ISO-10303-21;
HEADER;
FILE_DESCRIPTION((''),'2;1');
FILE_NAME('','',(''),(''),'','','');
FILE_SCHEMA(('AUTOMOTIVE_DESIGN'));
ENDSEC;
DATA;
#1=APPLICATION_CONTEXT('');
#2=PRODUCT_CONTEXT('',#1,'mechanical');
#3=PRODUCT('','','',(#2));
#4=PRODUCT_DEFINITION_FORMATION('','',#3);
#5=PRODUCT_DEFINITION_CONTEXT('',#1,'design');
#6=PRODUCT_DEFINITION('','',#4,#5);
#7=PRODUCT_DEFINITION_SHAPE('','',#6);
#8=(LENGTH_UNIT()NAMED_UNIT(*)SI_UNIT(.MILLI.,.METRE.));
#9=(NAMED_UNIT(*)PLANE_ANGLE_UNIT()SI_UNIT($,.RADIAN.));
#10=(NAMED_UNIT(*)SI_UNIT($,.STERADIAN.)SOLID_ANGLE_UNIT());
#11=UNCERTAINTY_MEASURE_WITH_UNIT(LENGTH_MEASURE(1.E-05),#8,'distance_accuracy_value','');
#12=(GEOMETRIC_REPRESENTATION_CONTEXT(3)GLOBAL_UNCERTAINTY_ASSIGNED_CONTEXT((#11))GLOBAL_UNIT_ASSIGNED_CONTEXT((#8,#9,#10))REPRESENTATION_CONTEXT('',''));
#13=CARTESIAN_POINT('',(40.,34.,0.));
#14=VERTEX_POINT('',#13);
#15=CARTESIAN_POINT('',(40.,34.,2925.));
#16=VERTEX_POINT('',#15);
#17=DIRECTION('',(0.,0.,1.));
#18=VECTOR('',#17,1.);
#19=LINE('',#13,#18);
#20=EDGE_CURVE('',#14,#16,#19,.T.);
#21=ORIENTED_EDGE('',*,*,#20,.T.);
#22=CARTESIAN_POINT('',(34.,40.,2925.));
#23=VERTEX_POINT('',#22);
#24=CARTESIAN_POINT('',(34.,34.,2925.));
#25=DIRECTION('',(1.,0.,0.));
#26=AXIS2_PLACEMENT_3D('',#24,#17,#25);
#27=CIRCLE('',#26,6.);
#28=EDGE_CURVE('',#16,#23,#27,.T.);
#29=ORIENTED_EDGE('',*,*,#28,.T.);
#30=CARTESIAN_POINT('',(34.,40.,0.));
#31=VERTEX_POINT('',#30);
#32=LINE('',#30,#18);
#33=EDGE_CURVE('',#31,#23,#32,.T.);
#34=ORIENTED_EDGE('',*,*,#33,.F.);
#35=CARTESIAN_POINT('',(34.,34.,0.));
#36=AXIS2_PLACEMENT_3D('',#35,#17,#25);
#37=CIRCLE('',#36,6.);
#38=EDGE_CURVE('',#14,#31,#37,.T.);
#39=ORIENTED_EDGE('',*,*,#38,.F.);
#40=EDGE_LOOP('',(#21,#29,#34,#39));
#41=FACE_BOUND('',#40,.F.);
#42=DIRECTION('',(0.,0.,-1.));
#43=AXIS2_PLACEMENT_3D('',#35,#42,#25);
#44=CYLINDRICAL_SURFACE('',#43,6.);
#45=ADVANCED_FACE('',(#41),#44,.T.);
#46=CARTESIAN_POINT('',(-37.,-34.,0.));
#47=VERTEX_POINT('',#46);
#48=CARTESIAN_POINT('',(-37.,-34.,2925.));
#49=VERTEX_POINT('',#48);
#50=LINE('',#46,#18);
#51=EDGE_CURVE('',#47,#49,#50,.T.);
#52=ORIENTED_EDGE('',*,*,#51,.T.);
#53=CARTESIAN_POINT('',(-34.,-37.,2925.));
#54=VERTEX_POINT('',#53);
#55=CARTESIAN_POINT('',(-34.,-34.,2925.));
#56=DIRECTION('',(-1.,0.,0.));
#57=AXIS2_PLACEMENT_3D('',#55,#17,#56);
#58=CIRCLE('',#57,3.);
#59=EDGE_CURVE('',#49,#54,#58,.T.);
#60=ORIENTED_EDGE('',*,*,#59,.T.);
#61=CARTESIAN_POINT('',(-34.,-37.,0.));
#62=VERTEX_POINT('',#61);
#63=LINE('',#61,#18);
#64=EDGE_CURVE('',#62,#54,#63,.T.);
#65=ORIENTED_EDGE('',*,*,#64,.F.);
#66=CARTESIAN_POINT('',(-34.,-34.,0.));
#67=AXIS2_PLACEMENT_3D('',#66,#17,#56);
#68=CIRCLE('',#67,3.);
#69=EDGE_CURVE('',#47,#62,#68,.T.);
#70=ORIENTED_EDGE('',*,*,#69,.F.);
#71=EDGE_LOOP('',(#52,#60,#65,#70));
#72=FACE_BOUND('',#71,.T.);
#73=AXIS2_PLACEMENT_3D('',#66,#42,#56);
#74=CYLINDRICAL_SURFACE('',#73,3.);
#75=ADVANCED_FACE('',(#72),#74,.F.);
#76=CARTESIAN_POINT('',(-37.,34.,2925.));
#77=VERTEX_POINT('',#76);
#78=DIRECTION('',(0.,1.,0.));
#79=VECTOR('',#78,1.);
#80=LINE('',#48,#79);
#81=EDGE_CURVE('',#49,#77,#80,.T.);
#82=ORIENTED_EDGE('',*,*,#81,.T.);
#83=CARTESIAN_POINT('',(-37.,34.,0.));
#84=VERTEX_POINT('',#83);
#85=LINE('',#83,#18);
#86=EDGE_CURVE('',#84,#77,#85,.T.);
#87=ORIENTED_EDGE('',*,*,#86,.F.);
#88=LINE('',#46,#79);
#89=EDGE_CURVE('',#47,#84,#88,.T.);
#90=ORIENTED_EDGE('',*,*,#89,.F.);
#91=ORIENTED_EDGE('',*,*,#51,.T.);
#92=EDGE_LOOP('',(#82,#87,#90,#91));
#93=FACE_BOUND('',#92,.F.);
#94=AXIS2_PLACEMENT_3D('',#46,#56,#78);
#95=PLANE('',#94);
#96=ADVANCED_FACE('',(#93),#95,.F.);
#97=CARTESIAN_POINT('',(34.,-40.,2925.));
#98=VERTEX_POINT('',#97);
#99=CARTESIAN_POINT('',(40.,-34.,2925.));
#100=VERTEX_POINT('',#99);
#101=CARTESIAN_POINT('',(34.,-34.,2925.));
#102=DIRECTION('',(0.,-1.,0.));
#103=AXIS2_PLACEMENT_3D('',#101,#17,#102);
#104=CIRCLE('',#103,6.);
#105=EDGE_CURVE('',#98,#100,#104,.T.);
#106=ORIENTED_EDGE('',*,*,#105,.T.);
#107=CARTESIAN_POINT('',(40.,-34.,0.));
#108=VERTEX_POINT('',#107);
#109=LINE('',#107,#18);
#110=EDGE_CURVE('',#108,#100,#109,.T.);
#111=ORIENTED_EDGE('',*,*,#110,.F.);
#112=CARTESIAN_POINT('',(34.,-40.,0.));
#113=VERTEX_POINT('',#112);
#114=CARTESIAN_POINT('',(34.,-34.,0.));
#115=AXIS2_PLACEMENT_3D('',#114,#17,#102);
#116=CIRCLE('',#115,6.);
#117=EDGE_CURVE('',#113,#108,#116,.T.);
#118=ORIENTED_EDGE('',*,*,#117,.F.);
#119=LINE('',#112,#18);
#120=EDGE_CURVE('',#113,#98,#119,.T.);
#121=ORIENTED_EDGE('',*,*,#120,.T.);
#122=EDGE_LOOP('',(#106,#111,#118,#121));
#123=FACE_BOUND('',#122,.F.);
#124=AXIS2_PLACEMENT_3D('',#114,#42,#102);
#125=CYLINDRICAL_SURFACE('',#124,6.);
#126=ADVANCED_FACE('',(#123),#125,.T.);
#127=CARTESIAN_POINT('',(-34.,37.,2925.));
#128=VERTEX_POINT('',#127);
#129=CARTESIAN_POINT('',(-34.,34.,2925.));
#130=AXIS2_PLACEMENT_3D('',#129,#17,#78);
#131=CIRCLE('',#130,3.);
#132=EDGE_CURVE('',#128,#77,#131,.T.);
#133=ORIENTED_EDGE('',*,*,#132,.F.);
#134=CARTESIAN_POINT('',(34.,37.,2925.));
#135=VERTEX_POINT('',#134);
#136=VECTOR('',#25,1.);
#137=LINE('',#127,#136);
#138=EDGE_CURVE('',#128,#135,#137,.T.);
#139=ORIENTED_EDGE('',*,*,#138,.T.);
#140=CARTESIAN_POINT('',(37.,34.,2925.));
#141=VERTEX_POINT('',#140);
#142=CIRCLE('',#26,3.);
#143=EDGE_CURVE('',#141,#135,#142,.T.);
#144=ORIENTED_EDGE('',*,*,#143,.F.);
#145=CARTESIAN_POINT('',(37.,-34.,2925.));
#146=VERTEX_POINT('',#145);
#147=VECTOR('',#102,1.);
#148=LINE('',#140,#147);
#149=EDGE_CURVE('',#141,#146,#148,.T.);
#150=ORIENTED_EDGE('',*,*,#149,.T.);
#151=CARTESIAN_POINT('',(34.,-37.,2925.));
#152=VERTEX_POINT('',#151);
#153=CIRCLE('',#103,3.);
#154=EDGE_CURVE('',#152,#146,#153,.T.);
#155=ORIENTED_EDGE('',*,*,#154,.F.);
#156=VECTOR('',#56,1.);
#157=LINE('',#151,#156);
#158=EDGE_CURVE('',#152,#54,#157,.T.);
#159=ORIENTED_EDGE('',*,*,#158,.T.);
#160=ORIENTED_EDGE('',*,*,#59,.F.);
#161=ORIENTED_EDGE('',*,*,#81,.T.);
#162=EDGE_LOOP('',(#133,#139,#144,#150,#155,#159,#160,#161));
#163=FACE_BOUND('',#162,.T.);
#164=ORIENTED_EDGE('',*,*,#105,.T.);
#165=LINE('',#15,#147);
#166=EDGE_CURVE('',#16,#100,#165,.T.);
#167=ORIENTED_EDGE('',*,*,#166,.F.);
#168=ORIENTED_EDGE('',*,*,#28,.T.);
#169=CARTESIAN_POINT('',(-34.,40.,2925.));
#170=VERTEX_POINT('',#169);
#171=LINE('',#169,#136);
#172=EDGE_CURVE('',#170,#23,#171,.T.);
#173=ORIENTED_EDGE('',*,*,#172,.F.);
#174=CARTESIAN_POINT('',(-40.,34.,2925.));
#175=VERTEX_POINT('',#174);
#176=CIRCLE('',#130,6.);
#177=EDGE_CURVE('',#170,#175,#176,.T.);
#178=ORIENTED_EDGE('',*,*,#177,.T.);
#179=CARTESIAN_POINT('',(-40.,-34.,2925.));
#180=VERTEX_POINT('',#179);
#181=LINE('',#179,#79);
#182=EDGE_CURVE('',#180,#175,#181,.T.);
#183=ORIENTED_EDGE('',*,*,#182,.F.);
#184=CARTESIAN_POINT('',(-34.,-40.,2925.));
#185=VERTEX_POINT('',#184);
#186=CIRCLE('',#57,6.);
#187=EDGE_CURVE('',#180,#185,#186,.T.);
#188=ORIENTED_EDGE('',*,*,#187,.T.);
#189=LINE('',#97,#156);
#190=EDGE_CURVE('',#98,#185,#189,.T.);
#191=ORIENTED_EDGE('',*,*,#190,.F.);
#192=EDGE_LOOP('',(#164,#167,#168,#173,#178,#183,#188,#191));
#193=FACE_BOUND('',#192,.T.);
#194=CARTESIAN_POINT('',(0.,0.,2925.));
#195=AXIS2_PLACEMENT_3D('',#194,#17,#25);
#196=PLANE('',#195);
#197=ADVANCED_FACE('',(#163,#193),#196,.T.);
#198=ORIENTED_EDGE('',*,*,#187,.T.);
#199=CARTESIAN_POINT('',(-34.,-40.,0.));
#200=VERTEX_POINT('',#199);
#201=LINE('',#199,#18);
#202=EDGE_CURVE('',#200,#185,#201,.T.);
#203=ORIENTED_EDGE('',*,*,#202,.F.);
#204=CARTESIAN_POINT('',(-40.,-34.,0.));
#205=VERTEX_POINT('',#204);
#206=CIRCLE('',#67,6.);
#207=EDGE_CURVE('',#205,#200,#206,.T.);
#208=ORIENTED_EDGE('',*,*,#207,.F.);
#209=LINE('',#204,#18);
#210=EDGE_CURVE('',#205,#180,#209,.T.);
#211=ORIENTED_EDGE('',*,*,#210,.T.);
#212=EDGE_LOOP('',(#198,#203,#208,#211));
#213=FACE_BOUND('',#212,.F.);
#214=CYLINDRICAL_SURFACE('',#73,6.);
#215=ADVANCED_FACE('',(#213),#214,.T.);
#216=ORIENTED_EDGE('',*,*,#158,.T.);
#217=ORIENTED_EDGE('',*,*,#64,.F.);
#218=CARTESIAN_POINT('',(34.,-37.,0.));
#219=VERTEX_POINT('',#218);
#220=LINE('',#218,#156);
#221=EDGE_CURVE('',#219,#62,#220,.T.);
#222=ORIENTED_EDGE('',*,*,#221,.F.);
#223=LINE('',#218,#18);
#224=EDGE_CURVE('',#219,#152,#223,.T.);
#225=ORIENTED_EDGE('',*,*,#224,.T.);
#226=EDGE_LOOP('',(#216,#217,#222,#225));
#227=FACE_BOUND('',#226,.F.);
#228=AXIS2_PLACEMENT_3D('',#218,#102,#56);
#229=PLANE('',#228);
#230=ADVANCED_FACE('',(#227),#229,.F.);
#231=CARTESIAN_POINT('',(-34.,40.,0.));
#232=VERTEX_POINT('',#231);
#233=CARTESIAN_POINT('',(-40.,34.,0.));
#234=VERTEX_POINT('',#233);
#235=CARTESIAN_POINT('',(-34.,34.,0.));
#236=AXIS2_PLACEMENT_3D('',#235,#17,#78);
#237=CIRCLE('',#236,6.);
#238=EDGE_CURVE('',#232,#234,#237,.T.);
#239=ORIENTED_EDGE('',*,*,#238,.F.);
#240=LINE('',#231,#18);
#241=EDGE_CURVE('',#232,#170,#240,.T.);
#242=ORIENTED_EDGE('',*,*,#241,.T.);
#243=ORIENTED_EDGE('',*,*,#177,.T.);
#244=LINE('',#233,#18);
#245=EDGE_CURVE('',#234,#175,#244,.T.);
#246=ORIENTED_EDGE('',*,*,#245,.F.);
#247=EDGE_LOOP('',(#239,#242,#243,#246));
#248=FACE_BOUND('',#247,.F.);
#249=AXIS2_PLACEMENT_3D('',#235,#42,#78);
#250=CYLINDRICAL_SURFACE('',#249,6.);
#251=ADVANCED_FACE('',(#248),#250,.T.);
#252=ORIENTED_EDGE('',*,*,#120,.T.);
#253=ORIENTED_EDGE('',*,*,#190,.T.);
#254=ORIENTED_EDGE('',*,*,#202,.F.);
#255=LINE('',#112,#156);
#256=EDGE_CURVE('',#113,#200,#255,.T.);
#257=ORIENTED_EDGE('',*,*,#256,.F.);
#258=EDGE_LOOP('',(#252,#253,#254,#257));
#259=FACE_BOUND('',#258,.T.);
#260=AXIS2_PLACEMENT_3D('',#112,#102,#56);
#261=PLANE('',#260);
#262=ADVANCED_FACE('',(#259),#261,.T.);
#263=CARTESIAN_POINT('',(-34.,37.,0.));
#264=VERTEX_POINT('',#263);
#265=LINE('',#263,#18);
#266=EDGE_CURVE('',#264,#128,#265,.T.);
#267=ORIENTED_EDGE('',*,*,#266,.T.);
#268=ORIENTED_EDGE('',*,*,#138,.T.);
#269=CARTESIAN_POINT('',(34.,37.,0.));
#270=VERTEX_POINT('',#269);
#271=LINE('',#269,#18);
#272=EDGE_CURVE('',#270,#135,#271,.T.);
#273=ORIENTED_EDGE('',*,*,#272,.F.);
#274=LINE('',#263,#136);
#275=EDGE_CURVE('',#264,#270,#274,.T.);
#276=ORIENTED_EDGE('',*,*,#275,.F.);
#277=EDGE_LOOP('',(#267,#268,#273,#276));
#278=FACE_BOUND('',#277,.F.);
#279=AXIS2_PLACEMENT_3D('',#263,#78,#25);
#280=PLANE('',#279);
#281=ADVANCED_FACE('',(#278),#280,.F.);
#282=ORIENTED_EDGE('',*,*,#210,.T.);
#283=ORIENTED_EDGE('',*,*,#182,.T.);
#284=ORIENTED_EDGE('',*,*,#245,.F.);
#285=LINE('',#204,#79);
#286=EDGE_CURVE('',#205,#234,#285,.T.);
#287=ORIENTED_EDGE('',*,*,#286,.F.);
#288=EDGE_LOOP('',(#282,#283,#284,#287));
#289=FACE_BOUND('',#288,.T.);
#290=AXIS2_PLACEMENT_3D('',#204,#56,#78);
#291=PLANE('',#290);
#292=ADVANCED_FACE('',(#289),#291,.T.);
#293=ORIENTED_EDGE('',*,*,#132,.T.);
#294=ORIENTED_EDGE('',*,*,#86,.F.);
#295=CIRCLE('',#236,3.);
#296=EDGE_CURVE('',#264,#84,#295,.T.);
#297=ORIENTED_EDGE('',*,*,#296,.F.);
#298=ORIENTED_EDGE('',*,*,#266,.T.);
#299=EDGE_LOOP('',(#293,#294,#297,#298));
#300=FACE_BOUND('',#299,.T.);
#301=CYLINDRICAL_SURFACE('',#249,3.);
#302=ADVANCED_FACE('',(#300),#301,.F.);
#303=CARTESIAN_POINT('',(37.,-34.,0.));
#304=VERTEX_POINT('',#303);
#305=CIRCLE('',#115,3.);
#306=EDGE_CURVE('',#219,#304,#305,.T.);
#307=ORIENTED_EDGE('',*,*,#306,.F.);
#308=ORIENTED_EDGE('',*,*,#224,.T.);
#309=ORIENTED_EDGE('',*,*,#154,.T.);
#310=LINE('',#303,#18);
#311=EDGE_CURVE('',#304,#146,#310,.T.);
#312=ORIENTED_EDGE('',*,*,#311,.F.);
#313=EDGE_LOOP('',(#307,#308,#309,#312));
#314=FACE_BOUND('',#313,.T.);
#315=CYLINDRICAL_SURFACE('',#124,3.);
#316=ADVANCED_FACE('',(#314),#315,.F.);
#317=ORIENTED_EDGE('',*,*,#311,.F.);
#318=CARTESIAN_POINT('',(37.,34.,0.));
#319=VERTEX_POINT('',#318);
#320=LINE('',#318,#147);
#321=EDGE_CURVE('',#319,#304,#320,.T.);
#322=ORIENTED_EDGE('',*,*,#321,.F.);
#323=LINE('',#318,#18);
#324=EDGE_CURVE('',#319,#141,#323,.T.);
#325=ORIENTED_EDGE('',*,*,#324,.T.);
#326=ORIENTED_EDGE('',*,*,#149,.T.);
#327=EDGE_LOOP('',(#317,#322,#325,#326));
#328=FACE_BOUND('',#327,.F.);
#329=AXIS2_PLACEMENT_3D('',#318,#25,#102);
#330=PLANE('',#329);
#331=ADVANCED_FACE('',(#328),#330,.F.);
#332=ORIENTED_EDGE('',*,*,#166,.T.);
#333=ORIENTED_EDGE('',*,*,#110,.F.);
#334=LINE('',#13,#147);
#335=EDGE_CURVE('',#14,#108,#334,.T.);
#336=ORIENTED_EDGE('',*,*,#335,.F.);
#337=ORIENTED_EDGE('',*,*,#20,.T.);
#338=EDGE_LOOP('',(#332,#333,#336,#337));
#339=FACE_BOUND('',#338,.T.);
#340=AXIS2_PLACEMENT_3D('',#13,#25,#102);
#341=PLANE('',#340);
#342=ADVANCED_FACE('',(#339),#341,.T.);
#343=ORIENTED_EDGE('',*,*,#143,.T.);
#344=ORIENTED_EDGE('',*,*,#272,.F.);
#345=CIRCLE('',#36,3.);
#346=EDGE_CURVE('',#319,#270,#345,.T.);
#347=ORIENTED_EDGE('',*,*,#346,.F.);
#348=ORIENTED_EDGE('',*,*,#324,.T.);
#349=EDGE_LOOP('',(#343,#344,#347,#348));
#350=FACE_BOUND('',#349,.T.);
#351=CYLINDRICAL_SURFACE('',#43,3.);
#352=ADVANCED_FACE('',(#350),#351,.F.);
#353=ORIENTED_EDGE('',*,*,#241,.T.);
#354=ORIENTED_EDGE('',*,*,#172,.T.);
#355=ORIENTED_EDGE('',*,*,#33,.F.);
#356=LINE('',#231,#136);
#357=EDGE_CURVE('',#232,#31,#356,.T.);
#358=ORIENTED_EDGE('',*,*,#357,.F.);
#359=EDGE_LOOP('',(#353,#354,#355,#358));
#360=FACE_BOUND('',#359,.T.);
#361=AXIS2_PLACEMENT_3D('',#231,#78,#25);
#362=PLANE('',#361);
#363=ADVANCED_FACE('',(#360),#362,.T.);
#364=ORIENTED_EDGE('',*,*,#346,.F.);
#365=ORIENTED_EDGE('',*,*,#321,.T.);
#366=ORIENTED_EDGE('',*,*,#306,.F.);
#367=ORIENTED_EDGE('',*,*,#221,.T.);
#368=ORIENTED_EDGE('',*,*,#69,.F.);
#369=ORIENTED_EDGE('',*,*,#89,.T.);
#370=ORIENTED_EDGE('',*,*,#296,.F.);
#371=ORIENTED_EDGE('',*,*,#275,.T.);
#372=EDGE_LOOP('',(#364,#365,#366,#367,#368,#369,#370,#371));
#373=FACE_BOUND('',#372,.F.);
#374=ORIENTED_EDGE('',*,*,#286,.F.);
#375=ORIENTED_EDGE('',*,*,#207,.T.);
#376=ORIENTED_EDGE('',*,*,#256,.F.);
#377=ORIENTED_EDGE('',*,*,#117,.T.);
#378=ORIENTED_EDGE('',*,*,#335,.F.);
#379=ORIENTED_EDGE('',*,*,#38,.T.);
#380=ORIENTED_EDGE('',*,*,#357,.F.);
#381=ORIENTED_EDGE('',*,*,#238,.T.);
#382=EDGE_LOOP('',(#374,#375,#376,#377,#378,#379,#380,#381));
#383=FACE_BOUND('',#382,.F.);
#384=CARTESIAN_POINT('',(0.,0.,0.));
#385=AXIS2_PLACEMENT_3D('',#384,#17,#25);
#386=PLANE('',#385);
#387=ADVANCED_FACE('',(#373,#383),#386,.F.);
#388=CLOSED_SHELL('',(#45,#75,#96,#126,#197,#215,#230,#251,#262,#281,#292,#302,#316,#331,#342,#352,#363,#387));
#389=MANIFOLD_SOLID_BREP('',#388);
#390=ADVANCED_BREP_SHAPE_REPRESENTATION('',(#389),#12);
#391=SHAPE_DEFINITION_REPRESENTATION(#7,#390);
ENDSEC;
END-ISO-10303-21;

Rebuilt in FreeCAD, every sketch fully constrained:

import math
import FreeCAD as App
import Part
import Sketcher
Q = App.Units.Quantity

doc = App.newDocument("Part")
params = doc.addObject("Spreadsheet::Sheet", "Params")
for row, (alias, value) in enumerate([
    ("sketch1_radius", "6 mm"),
    ("sketch1_radius2", "3 mm"),
    ("pad1_length", "2925 mm"),
], start=1):
    params.set(f"A{row}", alias)
    params.set(f"B{row}", "=" + value)
    params.setAlias(f"B{row}", alias)

body = doc.addObject("PartDesign::Body", "Body")

# Sketch on XY plane
sketch1 = doc.addObject("Sketcher::SketchObject", "Sketch")
body.addObject(sketch1)
sketch1.AttachmentSupport = (doc.XY_Plane, [""])
sketch1.MapMode = "FlatFace"
sketch1.addGeometry([
    Part.LineSegment(App.Vector(-40, 34, 0), App.Vector(-40, -34, 0)),  # 0
    Part.ArcOfCircle(Part.Circle(App.Vector(-34, -34, 0), App.Vector(0, 0, 1), 6), math.radians(180), math.radians(270)),  # 1
    Part.LineSegment(App.Vector(-34, -40, 0), App.Vector(34, -40, 0)),  # 2
    Part.ArcOfCircle(Part.Circle(App.Vector(34, -34, 0), App.Vector(0, 0, 1), 6), math.radians(-90), math.radians(0)),  # 3
    Part.LineSegment(App.Vector(40, -34, 0), App.Vector(40, 34, 0)),  # 4
    Part.ArcOfCircle(Part.Circle(App.Vector(34, 34, 0), App.Vector(0, 0, 1), 6), math.radians(0), math.radians(90)),  # 5
    Part.LineSegment(App.Vector(34, 40, 0), App.Vector(-34, 40, 0)),  # 6
    Part.ArcOfCircle(Part.Circle(App.Vector(-34, 34, 0), App.Vector(0, 0, 1), 6), math.radians(90), math.radians(180)),  # 7
    Part.ArcOfCircle(Part.Circle(App.Vector(-34, 34, 0), App.Vector(0, 0, 1), 3), math.radians(90), math.radians(180)),  # 8
    Part.LineSegment(App.Vector(-34, 37, 0), App.Vector(34, 37, 0)),  # 9
    Part.ArcOfCircle(Part.Circle(App.Vector(34, 34, 0), App.Vector(0, 0, 1), 3), math.radians(0), math.radians(90)),  # 10
    Part.LineSegment(App.Vector(37, 34, 0), App.Vector(37, -34, 0)),  # 11
    Part.ArcOfCircle(Part.Circle(App.Vector(34, -34, 0), App.Vector(0, 0, 1), 3), math.radians(-90), math.radians(0)),  # 12
    Part.LineSegment(App.Vector(34, -37, 0), App.Vector(-34, -37, 0)),  # 13
    Part.ArcOfCircle(Part.Circle(App.Vector(-34, -34, 0), App.Vector(0, 0, 1), 3), math.radians(180), math.radians(270)),  # 14
    Part.LineSegment(App.Vector(-37, -34, 0), App.Vector(-37, 34, 0)),  # 15
], False)
sketch1.addConstraint([
    Sketcher.Constraint("Tangent", 0, 2, 1, 1),
    Sketcher.Constraint("Tangent", 1, 2, 2, 1),
    Sketcher.Constraint("Tangent", 2, 2, 3, 1),
    Sketcher.Constraint("Tangent", 3, 2, 4, 1),
    Sketcher.Constraint("Tangent", 4, 2, 5, 1),
    Sketcher.Constraint("Tangent", 5, 2, 6, 1),
    Sketcher.Constraint("Tangent", 6, 2, 7, 1),
    Sketcher.Constraint("Tangent", 7, 2, 0, 1),
    Sketcher.Constraint("Tangent", 8, 1, 9, 1),
    Sketcher.Constraint("Tangent", 9, 2, 10, 2),
    Sketcher.Constraint("Tangent", 10, 1, 11, 1),
    Sketcher.Constraint("Tangent", 11, 2, 12, 2),
    Sketcher.Constraint("Tangent", 12, 1, 13, 1),
    Sketcher.Constraint("Tangent", 13, 2, 14, 2),
    Sketcher.Constraint("Tangent", 14, 1, 15, 1),
    Sketcher.Constraint("Tangent", 15, 2, 8, 2),
    Sketcher.Constraint("Vertical", 0),
    Sketcher.Constraint("Horizontal", 2),
    Sketcher.Constraint("Vertical", 4),
    Sketcher.Constraint("Horizontal", 6),
    Sketcher.Constraint("Horizontal", 9),
    Sketcher.Constraint("Vertical", 11),
    Sketcher.Constraint("Horizontal", 13),
    Sketcher.Constraint("Vertical", 15),
    Sketcher.Constraint("Coincident", 8, 3, 7, 3),
    Sketcher.Constraint("Coincident", 10, 3, 5, 3),
    Sketcher.Constraint("Coincident", 12, 3, 3, 3),
    Sketcher.Constraint("Equal", 1, 3),
    Sketcher.Constraint("Equal", 3, 5),
    Sketcher.Constraint("Equal", 5, 7),
    Sketcher.Constraint("Equal", 12, 14),
    Sketcher.Constraint("Symmetric", 1, 3, 5, 3, -1, 1),
    Sketcher.Constraint("Equal", 13, 0),
    Sketcher.Constraint("Radius", 1, Q("6 mm")),
    Sketcher.Constraint("Radius", 8, Q("3 mm")),
    Sketcher.Constraint("DistanceX", 0, 2, -1, 1, Q("40 mm")),
])
sketch1.setExpression("Constraints[33]", "Params.sketch1_radius")
sketch1.setExpression("Constraints[34]", "Params.sketch1_radius2")
pad1 = doc.addObject("PartDesign::Pad", "Pad")
body.addObject(pad1)
pad1.Profile = sketch1
pad1.setExpression("Length", "Params.pad1_length")

doc.recompute()
